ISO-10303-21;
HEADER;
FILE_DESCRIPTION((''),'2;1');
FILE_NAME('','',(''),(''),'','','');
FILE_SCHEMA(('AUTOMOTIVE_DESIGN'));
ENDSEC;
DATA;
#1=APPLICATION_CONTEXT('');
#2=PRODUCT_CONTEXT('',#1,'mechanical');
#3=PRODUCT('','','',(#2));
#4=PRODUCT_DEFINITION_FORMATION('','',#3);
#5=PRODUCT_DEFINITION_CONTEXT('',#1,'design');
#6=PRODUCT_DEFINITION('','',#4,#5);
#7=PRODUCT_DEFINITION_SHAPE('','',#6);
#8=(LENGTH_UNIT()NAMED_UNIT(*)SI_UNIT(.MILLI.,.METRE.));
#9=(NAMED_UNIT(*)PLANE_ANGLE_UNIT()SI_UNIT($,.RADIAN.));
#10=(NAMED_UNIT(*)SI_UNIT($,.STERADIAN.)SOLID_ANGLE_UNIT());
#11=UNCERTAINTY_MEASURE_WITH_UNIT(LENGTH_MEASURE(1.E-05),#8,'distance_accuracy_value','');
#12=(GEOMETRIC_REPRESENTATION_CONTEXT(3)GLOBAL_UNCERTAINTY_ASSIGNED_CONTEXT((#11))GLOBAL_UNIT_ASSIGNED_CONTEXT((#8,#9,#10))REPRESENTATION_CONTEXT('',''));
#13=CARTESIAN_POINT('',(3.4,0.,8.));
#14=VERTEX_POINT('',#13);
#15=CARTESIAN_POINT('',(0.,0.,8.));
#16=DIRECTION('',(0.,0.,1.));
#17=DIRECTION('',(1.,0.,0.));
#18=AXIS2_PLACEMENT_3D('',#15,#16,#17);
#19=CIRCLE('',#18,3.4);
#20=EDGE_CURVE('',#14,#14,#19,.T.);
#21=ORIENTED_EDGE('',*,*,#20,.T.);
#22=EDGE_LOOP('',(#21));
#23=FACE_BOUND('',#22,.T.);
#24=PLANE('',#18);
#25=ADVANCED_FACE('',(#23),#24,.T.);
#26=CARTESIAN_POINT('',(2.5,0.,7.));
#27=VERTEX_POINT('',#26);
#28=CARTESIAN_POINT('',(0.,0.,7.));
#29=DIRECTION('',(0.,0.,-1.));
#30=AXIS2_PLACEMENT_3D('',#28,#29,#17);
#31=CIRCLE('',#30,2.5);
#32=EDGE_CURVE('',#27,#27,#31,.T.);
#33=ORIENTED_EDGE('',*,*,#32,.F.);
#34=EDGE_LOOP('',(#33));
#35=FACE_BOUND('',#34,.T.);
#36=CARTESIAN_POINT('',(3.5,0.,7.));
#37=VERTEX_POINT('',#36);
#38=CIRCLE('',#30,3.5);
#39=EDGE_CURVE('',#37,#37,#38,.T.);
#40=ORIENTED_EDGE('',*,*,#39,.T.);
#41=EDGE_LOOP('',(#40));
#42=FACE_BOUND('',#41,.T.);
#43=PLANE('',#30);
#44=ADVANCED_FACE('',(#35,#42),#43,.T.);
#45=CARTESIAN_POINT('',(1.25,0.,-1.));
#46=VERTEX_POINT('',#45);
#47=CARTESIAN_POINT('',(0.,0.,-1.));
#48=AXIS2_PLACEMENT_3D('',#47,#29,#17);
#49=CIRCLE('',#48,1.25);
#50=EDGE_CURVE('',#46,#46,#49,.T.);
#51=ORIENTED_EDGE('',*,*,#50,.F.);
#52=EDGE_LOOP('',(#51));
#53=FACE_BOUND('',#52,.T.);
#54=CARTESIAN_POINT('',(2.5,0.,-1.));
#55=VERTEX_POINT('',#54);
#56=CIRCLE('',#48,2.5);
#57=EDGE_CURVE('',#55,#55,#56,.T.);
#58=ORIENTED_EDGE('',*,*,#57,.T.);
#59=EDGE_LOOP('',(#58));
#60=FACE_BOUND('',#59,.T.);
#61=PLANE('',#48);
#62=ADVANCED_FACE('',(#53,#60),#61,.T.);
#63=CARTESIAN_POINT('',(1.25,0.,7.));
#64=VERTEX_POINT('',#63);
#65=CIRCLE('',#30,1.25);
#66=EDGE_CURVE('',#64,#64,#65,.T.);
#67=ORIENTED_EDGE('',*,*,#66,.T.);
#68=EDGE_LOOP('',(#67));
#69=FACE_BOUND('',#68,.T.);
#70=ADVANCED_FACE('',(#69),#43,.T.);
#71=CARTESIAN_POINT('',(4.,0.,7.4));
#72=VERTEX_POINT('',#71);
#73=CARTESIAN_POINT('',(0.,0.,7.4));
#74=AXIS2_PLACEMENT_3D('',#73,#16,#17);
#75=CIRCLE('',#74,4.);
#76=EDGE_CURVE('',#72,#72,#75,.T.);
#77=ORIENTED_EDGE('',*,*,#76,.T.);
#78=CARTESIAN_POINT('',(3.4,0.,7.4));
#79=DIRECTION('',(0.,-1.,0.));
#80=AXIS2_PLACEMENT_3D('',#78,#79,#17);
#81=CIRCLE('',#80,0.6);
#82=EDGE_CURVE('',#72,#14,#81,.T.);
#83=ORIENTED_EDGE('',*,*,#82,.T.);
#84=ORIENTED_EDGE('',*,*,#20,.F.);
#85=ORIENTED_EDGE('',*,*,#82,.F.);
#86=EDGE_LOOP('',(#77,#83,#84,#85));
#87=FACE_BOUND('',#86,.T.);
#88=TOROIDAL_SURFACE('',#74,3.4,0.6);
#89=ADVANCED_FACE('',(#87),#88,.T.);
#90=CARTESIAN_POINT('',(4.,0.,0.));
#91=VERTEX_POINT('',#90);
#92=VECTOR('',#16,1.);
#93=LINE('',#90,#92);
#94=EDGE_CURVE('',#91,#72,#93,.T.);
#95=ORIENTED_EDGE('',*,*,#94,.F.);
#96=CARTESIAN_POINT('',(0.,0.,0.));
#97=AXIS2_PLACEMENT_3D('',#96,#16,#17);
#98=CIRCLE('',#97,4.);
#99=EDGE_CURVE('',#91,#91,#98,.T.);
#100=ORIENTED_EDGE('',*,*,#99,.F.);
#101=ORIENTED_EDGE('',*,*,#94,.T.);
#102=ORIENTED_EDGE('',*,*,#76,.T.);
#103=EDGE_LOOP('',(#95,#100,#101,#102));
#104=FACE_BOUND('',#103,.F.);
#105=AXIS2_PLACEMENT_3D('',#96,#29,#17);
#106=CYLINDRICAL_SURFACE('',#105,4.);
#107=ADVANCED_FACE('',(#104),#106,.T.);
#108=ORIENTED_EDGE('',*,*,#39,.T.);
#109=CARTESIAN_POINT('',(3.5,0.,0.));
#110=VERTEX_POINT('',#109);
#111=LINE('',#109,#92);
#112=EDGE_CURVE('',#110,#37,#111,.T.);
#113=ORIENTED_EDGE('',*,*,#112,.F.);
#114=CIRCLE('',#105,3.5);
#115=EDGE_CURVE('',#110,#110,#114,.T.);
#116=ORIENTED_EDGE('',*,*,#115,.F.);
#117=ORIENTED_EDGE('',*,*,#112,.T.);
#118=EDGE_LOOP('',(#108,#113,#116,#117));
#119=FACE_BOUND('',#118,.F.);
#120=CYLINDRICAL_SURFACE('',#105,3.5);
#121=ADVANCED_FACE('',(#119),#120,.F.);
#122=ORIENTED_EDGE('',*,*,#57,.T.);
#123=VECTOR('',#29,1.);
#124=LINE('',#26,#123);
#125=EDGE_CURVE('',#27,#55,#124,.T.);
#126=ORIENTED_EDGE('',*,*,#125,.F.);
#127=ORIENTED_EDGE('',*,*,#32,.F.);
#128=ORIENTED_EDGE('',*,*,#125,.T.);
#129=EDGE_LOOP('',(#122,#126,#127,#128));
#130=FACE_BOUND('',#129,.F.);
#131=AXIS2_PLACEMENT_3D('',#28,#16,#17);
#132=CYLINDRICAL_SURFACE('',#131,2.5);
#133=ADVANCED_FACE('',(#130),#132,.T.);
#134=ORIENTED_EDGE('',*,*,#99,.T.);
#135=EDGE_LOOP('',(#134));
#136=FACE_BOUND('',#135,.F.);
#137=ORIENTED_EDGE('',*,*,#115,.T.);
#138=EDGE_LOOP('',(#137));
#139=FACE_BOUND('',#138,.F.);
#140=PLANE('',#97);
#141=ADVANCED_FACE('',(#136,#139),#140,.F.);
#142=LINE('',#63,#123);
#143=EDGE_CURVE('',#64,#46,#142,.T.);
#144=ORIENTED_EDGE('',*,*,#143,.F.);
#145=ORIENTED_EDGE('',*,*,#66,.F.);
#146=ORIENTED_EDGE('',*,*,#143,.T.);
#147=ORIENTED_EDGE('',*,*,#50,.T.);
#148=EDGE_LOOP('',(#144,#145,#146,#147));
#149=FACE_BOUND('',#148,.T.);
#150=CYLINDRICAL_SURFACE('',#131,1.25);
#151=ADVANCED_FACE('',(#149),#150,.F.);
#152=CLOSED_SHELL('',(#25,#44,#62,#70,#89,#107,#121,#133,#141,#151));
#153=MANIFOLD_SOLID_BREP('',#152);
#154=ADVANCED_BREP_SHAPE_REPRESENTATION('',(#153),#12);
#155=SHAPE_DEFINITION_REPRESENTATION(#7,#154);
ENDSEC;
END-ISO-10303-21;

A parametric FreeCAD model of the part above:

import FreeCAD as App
import Part
import Sketcher

V = App.Vector


def edges_at(feature, points):
    """Names of the edges that pass closest to the given points."""
    edges = feature.Shape.Edges
    near = lambda p: min(range(len(edges)), key=lambda i: edges[i].distToShape(Part.Vertex(*p))[0])
    return sorted({f"Edge{near(p) + 1}" for p in points})

doc = App.newDocument("Part")
params = doc.addObject("Spreadsheet::Sheet", "Params")
for row, (alias, value) in enumerate([
    ("sketch1_diameter", "8 mm"),
    ("pad1_length", "8 mm"),
    ("fillet_radius", "0.6 mm"),
    ("sketch2_diameter", "7 mm"),
    ("pocket1_length", "7 mm"),
    ("sketch3_diameter", "5 mm"),
    ("sketch3_diameter2", "2.5 mm"),
    ("pad2_length", "8 mm"),
], start=1):
    params.set(f"A{row}", alias)
    params.set(f"B{row}", "=" + value)
    params.setAlias(f"B{row}", alias)

body = doc.addObject("PartDesign::Body", "Body")

# Sketch on XY plane
sketch1 = body.newObject("Sketcher::SketchObject", "Sketch")
sketch1.AttachmentSupport = (doc.getObject("XY_Plane"), [""])
sketch1.MapMode = "FlatFace"
sketch1.addGeometry(Part.Circle(V(0, 0, 0), V(0, 0, 1), 4), False)
sketch1.addConstraint([
    Sketcher.Constraint("Coincident", 0, 3, -1, 1),
    Sketcher.Constraint("Diameter", 0, 8.0),
])
sketch1.setExpression("Constraints[1]", "Params.sketch1_diameter")
pad1 = body.newObject("PartDesign::Pad", "Pad")
pad1.Profile = sketch1
pad1.setExpression("Length", "Params.pad1_length")
doc.recompute()

fillet = body.newObject("PartDesign::Fillet", "Fillet")
fillet.Base = (pad1, edges_at(pad1, [(-4, 0, 8)]))
fillet.setExpression("Radius", "Params.fillet_radius")

# Sketch on XY plane
sketch2 = body.newObject("Sketcher::SketchObject", "Sketch001")
sketch2.AttachmentSupport = (doc.getObject("XY_Plane"), [""])
sketch2.MapMode = "FlatFace"
sketch2.addGeometry(Part.Circle(V(0, 0, 0), V(0, 0, 1), 3.5), False)
sketch2.addConstraint([
    Sketcher.Constraint("Coincident", 0, 3, -1, 1),
    Sketcher.Constraint("Diameter", 0, 7.0),
])
sketch2.setExpression("Constraints[1]", "Params.sketch2_diameter")
pocket1 = body.newObject("PartDesign::Pocket", "Pocket")
pocket1.Profile = sketch2
pocket1.setExpression("Length", "Params.pocket1_length")
pocket1.Reversed = True

# Sketch on XY plane
sketch3 = body.newObject("Sketcher::SketchObject", "Sketch002")
sketch3.AttachmentSupport = (doc.getObject("XY_Plane"), [""])
sketch3.MapMode = "FlatFace"
sketch3.AttachmentOffset = App.Placement(V(0, 0, 7), App.Rotation())
sketch3.addGeometry([
    Part.Circle(V(0, 0, 0), V(0, 0, 1), 2.5),
    Part.Circle(V(0, 0, 0), V(0, 0, 1), 1.25),
], False)
sketch3.addConstraint([
    Sketcher.Constraint("Coincident", 0, 3, -1, 1),
    Sketcher.Constraint("Coincident", 1, 3, -1, 1),
    Sketcher.Constraint("Diameter", 0, 5.0),
    Sketcher.Constraint("Diameter", 1, 2.5),
])
sketch3.setExpression("Constraints[2]", "Params.sketch3_diameter")
sketch3.setExpression("Constraints[3]", "Params.sketch3_diameter2")
pad2 = body.newObject("PartDesign::Pad", "Pad001")
pad2.Profile = sketch3
pad2.setExpression("Length", "Params.pad2_length")
pad2.Reversed = True

doc.recompute()
